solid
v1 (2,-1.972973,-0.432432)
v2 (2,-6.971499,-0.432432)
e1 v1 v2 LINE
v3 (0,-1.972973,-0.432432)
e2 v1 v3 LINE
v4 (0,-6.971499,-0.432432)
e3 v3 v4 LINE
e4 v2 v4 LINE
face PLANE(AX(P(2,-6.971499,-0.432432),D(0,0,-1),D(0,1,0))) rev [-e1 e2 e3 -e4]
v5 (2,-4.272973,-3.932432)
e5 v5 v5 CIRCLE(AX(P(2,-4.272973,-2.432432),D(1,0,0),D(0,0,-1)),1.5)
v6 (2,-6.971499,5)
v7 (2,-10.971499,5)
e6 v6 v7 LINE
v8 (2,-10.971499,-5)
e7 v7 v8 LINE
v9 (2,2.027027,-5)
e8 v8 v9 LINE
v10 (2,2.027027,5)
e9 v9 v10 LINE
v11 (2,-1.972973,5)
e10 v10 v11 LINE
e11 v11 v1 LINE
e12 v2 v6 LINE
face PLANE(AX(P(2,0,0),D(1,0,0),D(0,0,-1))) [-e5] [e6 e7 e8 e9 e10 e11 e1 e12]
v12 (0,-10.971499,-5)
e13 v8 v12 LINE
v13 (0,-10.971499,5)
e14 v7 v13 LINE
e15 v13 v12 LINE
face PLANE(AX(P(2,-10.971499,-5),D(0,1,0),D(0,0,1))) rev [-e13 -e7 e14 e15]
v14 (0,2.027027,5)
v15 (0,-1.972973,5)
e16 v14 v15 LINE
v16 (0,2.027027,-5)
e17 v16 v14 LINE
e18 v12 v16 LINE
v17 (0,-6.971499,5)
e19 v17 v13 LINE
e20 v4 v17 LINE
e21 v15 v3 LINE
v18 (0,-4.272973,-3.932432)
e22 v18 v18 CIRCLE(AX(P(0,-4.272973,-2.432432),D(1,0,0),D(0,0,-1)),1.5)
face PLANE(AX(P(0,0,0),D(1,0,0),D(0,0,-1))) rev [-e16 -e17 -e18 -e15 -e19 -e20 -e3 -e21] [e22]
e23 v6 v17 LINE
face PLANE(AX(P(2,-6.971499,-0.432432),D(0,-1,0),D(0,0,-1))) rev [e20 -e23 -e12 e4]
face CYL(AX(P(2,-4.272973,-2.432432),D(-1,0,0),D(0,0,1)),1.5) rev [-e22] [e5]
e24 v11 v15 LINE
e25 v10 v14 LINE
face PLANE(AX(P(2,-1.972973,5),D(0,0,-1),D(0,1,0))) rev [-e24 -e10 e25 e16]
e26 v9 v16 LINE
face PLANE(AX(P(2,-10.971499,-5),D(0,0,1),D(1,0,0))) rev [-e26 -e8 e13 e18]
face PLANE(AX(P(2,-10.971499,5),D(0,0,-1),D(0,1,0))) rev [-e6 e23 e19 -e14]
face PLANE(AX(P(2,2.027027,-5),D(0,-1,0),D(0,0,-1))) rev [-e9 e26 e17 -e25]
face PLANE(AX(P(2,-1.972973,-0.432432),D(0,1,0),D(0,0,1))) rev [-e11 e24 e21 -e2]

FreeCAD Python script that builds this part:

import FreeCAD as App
import Part
import Sketcher
Q = App.Units.Quantity


def add_polygon(sketch, points):
    """Adds a closed chain of lines whose ends are joined by coincident constraints."""
    first, n = sketch.GeometryCount, len(points)
    for a, b in zip(points, points[1:] + points[:1]):
        sketch.addGeometry(Part.LineSegment(App.Vector(*a, 0), App.Vector(*b, 0)), False)
    for i in range(n):
        sketch.addConstraint(Sketcher.Constraint("Coincident", first + i, 2, first + (i + 1) % n, 1))

doc = App.newDocument("Part")
body = doc.addObject("PartDesign::Body", "Body")

sketch1 = doc.addObject("Sketcher::SketchObject", "Sketch")
body.addObject(sketch1)
sketch1.AttachmentSupport = (doc.YZ_Plane, [""])
sketch1.MapMode = "FlatFace"
add_polygon(sketch1, [(-6.971499, -0.432432), (-6.971499, 5), (-10.971499, 5), (-10.971499, -5), (2.027027, -5), (2.027027, 5), (-1.972973, 5), (-1.972973, -0.432432)])
sketch1.addGeometry(Part.Circle(App.Vector(-4.272973, -2.432432, 0), App.Vector(0, 0, 1), 1.5), False)
sketch1.addConstraint([
    Sketcher.Constraint("Vertical", 0),
    Sketcher.Constraint("Horizontal", 1),
    Sketcher.Constraint("Vertical", 2),
    Sketcher.Constraint("Horizontal", 3),
    Sketcher.Constraint("Vertical", 4),
    Sketcher.Constraint("Horizontal", 5),
    Sketcher.Constraint("Vertical", 6),
    Sketcher.Constraint("Horizontal", 7),
    Sketcher.Constraint("Horizontal", 1, 2, 4, 2),
    Sketcher.Constraint("Equal", 1, 5),
    Sketcher.Constraint("Diameter", 8, Q("3 mm")),
    Sketcher.Constraint("DistanceX", 1, 2, 1, 1, Q("4 mm")),
    Sketcher.Constraint("DistanceY", 2, 2, 2, 1, Q("10 mm")),
    Sketcher.Constraint("DistanceY", -1, 1, 0, 2, Q("5 mm")),
    Sketcher.Constraint("DistanceY", 8, 3, 6, 2, Q("2 mm")),
    Sketcher.Constraint("DistanceX", 8, 3, 3, 2, Q("6.3 mm")),
    Sketcher.Constraint("DistanceX", 0, 2, -1, 1, Q("6.971499 mm")),
    Sketcher.Constraint("DistanceX", 3, 1, 3, 2, Q("12.998526 mm")),
    Sketcher.Constraint("DistanceY", 0, 1, 0, 2, Q("5.432432 mm")),
])
pad1 = doc.addObject("PartDesign::Pad", "Pad")
body.addObject(pad1)
pad1.Profile = sketch1
pad1.Length = 2

doc.recompute()
